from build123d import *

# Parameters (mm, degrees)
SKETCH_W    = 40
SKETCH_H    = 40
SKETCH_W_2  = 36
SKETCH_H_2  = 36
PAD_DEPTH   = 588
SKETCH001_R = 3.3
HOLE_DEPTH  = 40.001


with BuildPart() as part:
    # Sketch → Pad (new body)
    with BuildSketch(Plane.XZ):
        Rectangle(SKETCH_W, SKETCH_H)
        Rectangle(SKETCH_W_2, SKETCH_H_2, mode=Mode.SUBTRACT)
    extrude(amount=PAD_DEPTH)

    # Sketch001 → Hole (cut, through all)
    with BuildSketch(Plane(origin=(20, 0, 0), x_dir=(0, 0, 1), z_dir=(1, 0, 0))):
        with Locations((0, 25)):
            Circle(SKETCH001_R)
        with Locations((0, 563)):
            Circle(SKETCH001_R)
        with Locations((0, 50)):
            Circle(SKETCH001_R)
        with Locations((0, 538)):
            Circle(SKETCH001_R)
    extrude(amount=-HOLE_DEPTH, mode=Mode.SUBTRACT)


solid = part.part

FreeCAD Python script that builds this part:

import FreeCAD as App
import Part
import Sketcher
from FreeCAD import Vector


def add_polygon(sketch, points):
    """Adds a closed chain of lines whose ends are joined by coincident constraints."""
    first, n = sketch.GeometryCount, len(points)
    for a, b in zip(points, points[1:] + points[:1]):
        sketch.addGeometry(Part.LineSegment(App.Vector(*a, 0), App.Vector(*b, 0)), False)
    for i in range(n):
        sketch.addConstraint(Sketcher.Constraint("Coincident", first + i, 2, first + (i + 1) % n, 1))

doc = App.newDocument("Part")
body = doc.addObject("PartDesign::Body", "Body")

sketch1 = body.newObject("Sketcher::SketchObject", "Sketch")
sketch1.AttachmentSupport = (doc.getObject("XZ_Plane"), [""])
sketch1.MapMode = "FlatFace"
add_polygon(sketch1, [(-20, 20), (-20, -20), (20, -20), (20, 20)])
add_polygon(sketch1, [(18, -18), (-18, -18), (-18, 18), (18, 18)])
sketch1.addConstraint(Sketcher.Constraint("Vertical", 0))
sketch1.addConstraint(Sketcher.Constraint("Horizontal", 1))
sketch1.addConstraint(Sketcher.Constraint("Vertical", 2))
sketch1.addConstraint(Sketcher.Constraint("Horizontal", 3))
sketch1.addConstraint(Sketcher.Constraint("Horizontal", 4))
sketch1.addConstraint(Sketcher.Constraint("Vertical", 5))
sketch1.addConstraint(Sketcher.Constraint("Horizontal", 6))
sketch1.addConstraint(Sketcher.Constraint("Vertical", 7))
sketch1.addConstraint(Sketcher.Constraint("Symmetric", 0, 2, 2, 2, -1, 1))
sketch1.addConstraint(Sketcher.Constraint("Symmetric", 4, 2, 6, 2, -1, 1))
sketch1.addConstraint(Sketcher.Constraint("Equal", 3, 0))
sketch1.addConstraint(Sketcher.Constraint("Equal", 6, 5))
sketch1.addConstraint(Sketcher.Constraint("DistanceX", 1, 1, 1, 2, 40.0))
sketch1.addConstraint(Sketcher.Constraint("DistanceX", 4, 2, 4, 1, 36.0))
pad1 = body.newObject("PartDesign::Pad", "Pad")
pad1.Profile = sketch1
pad1.Length = 588

sketch2 = body.newObject("Sketcher::SketchObject", "Sketch001")
sketch2.AttachmentSupport = (doc.getObject("YZ_Plane"), [""])
sketch2.MapMode = "FlatFace"
sketch2.AttachmentOffset = App.Placement(Vector(0, 0, 20), App.Rotation())
sketch2.addGeometry(Part.Circle(Vector(-25, 0, 0), Vector(0, 0, 1), 3.3), False)
sketch2.addGeometry(Part.Circle(Vector(-563, 0, 0), Vector(0, 0, 1), 3.3), False)
sketch2.addGeometry(Part.Circle(Vector(-50, 0, 0), Vector(0, 0, 1), 3.3), False)
sketch2.addGeometry(Part.Circle(Vector(-538, 0, 0), Vector(0, 0, 1), 3.3), False)
sketch2.addConstraint(Sketcher.Constraint("Equal", 0, 1))
sketch2.addConstraint(Sketcher.Constraint("Equal", 1, 2))
sketch2.addConstraint(Sketcher.Constraint("Equal", 2, 3))
sketch2.addConstraint(Sketcher.Constraint("PointOnObject", 0, 3, -1))
sketch2.addConstraint(Sketcher.Constraint("PointOnObject", 1, 3, -1))
sketch2.addConstraint(Sketcher.Constraint("PointOnObject", 2, 3, -1))
sketch2.addConstraint(Sketcher.Constraint("PointOnObject", 3, 3, -1))
sketch2.addConstraint(Sketcher.Constraint("Diameter", 0, 6.6))
sketch2.addConstraint(Sketcher.Constraint("DistanceX", 0, 3, -1, 1, 25.0))
sketch2.addConstraint(Sketcher.Constraint("DistanceX", 1, 3, -1, 1, 563.0))
sketch2.addConstraint(Sketcher.Constraint("DistanceX", 2, 3, -1, 1, 50.0))
sketch2.addConstraint(Sketcher.Constraint("DistanceX", 3, 3, -1, 1, 538.0))
pocket1 = body.newObject("PartDesign::Pocket", "Pocket")
pocket1.Profile = sketch2
pocket1.Type = "ThroughAll"

doc.recompute()
